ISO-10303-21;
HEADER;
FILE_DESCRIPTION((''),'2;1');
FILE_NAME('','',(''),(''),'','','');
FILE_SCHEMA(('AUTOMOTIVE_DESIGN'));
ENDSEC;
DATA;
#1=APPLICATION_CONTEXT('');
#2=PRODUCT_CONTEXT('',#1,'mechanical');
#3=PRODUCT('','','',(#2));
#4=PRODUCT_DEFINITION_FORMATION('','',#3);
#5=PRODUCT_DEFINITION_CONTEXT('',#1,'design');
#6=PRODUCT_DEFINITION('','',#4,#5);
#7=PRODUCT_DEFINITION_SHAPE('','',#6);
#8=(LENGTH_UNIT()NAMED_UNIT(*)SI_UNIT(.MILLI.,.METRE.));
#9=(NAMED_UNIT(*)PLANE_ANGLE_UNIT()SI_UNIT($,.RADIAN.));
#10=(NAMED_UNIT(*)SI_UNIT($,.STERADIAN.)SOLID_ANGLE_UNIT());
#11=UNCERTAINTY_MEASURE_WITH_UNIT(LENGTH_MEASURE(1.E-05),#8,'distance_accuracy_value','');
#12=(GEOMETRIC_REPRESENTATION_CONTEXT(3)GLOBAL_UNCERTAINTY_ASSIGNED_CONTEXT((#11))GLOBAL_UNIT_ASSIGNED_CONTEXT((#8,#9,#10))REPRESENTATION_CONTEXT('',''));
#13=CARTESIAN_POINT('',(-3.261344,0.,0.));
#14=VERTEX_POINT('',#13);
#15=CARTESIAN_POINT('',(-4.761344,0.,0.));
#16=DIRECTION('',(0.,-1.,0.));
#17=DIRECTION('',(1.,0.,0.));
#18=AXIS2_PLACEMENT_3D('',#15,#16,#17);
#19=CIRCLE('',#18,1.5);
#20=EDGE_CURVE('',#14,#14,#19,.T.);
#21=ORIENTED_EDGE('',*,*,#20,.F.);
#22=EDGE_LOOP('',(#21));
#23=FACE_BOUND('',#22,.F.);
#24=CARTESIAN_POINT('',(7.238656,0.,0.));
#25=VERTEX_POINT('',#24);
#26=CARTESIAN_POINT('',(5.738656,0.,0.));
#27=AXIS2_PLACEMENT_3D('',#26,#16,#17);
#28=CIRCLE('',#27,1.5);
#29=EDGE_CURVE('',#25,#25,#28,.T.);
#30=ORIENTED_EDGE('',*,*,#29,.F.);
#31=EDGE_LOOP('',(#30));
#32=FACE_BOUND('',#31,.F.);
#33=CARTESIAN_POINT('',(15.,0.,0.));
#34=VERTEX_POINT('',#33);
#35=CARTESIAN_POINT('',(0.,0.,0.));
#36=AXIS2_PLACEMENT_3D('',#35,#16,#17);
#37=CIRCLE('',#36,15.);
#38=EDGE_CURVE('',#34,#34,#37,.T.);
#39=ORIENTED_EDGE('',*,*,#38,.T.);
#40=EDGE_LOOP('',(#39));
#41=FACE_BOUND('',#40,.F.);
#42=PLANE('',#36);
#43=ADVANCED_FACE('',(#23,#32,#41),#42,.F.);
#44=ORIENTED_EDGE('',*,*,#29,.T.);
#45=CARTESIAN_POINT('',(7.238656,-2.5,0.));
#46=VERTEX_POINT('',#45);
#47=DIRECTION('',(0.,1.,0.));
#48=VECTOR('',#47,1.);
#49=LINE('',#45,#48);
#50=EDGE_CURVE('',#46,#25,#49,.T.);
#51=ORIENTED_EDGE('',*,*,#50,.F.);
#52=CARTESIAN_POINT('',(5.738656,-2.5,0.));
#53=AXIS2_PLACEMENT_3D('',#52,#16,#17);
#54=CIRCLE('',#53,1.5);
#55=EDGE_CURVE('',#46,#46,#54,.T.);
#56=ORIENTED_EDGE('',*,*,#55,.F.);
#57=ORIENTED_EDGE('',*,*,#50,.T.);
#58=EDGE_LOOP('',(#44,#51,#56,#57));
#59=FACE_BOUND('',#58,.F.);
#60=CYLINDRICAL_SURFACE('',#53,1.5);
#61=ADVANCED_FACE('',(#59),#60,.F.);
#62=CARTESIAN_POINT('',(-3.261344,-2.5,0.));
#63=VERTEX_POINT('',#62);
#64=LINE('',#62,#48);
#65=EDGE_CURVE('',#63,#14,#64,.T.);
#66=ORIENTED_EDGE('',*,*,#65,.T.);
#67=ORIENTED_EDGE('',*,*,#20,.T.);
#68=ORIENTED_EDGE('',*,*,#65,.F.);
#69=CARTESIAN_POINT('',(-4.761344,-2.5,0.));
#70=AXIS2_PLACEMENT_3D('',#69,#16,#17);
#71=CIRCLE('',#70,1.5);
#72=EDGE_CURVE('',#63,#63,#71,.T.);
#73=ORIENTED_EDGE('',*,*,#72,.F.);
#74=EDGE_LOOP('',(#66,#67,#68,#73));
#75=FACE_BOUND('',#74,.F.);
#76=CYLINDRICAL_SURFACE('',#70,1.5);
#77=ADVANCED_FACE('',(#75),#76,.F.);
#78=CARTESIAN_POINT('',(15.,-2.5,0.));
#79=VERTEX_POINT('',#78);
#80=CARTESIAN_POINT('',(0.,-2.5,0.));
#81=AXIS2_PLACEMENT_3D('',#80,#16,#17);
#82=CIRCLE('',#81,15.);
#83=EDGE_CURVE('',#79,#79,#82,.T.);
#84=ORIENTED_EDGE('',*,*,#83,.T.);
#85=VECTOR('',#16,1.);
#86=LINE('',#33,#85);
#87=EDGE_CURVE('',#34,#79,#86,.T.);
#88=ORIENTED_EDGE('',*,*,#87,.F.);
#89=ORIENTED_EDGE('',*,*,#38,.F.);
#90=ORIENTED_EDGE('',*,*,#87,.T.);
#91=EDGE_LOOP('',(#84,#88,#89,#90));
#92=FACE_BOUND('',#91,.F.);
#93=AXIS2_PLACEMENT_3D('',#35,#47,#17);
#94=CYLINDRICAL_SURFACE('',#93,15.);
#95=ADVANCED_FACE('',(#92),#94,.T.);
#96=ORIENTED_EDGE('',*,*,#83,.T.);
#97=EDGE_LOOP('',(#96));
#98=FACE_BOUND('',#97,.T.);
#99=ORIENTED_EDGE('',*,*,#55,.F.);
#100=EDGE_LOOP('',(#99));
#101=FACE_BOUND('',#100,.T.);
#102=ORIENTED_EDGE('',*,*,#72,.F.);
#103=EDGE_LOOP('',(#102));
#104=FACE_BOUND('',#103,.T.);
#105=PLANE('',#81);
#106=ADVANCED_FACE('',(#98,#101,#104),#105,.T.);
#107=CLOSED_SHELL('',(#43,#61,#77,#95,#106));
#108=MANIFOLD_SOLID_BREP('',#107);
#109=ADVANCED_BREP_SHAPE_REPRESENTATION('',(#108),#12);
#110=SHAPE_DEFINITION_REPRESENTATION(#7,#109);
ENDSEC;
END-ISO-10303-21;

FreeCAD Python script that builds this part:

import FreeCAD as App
import Part
import Sketcher
from FreeCAD import Vector

doc = App.newDocument("Part")
params = doc.addObject("Spreadsheet::Sheet", "Params")
for row, (alias, value) in enumerate([
    ("sketch1_diameter", "30 mm"),
    ("pad1_length", "2.5 mm"),
    ("sketch2_diameter", "3 mm"),
    ("pocket1_length", "5 mm"),
], start=1):
    params.set(f"A{row}", alias)
    params.set(f"B{row}", "=" + value)
    params.setAlias(f"B{row}", alias)

body = doc.addObject("PartDesign::Body", "Body")

sketch1 = body.newObject("Sketcher::SketchObject", "Sketch")
sketch1.AttachmentSupport = (doc.getObject("XZ_Plane"), [""])
sketch1.MapMode = "FlatFace"
sketch1.addGeometry(Part.Circle(Vector(0, 0, 0), Vector(0, 0, 1), 15), False)
sketch1.addConstraint(Sketcher.Constraint("Coincident", 0, 3, -1, 1))
sketch1.addConstraint(Sketcher.Constraint("Diameter", 0, 30.0))
sketch1.setExpression("Constraints[1]", "Params.sketch1_diameter")
pad1 = body.newObject("PartDesign::Pad", "Pad")
pad1.Profile = sketch1
pad1.setExpression("Length", "Params.pad1_length")

sketch2 = body.newObject("Sketcher::SketchObject", "Sketch001")
sketch2.AttachmentSupport = (doc.getObject("XZ_Plane"), [""])
sketch2.MapMode = "FlatFace"
sketch2.AttachmentOffset = App.Placement(Vector(0, 0, 2.5), App.Rotation())
sketch2.addGeometry(Part.Circle(Vector(-4.8, 0, 0), Vector(0, 0, 1), 1.5), False)
sketch2.addGeometry(Part.Circle(Vector(5.7, 0, 0), Vector(0, 0, 1), 1.5), False)
sketch2.addConstraint(Sketcher.Constraint("Equal", 0, 1))
sketch2.addConstraint(Sketcher.Constraint("PointOnObject", 0, 3, -1))
sketch2.addConstraint(Sketcher.Constraint("PointOnObject", 1, 3, -1))
sketch2.addConstraint(Sketcher.Constraint("Diameter", 0, 3.0))
sketch2.addConstraint(Sketcher.Constraint("DistanceX", 0, 3, 1, 3, 10.5))
sketch2.addConstraint(Sketcher.Constraint("DistanceX", 0, 3, -1, 1, 4.761344))
sketch2.setExpression("Constraints[3]", "Params.sketch2_diameter")
pocket1 = body.newObject("PartDesign::Pocket", "Pocket")
pocket1.Profile = sketch2
pocket1.setExpression("Length", "Params.pocket1_length")

doc.recompute()
